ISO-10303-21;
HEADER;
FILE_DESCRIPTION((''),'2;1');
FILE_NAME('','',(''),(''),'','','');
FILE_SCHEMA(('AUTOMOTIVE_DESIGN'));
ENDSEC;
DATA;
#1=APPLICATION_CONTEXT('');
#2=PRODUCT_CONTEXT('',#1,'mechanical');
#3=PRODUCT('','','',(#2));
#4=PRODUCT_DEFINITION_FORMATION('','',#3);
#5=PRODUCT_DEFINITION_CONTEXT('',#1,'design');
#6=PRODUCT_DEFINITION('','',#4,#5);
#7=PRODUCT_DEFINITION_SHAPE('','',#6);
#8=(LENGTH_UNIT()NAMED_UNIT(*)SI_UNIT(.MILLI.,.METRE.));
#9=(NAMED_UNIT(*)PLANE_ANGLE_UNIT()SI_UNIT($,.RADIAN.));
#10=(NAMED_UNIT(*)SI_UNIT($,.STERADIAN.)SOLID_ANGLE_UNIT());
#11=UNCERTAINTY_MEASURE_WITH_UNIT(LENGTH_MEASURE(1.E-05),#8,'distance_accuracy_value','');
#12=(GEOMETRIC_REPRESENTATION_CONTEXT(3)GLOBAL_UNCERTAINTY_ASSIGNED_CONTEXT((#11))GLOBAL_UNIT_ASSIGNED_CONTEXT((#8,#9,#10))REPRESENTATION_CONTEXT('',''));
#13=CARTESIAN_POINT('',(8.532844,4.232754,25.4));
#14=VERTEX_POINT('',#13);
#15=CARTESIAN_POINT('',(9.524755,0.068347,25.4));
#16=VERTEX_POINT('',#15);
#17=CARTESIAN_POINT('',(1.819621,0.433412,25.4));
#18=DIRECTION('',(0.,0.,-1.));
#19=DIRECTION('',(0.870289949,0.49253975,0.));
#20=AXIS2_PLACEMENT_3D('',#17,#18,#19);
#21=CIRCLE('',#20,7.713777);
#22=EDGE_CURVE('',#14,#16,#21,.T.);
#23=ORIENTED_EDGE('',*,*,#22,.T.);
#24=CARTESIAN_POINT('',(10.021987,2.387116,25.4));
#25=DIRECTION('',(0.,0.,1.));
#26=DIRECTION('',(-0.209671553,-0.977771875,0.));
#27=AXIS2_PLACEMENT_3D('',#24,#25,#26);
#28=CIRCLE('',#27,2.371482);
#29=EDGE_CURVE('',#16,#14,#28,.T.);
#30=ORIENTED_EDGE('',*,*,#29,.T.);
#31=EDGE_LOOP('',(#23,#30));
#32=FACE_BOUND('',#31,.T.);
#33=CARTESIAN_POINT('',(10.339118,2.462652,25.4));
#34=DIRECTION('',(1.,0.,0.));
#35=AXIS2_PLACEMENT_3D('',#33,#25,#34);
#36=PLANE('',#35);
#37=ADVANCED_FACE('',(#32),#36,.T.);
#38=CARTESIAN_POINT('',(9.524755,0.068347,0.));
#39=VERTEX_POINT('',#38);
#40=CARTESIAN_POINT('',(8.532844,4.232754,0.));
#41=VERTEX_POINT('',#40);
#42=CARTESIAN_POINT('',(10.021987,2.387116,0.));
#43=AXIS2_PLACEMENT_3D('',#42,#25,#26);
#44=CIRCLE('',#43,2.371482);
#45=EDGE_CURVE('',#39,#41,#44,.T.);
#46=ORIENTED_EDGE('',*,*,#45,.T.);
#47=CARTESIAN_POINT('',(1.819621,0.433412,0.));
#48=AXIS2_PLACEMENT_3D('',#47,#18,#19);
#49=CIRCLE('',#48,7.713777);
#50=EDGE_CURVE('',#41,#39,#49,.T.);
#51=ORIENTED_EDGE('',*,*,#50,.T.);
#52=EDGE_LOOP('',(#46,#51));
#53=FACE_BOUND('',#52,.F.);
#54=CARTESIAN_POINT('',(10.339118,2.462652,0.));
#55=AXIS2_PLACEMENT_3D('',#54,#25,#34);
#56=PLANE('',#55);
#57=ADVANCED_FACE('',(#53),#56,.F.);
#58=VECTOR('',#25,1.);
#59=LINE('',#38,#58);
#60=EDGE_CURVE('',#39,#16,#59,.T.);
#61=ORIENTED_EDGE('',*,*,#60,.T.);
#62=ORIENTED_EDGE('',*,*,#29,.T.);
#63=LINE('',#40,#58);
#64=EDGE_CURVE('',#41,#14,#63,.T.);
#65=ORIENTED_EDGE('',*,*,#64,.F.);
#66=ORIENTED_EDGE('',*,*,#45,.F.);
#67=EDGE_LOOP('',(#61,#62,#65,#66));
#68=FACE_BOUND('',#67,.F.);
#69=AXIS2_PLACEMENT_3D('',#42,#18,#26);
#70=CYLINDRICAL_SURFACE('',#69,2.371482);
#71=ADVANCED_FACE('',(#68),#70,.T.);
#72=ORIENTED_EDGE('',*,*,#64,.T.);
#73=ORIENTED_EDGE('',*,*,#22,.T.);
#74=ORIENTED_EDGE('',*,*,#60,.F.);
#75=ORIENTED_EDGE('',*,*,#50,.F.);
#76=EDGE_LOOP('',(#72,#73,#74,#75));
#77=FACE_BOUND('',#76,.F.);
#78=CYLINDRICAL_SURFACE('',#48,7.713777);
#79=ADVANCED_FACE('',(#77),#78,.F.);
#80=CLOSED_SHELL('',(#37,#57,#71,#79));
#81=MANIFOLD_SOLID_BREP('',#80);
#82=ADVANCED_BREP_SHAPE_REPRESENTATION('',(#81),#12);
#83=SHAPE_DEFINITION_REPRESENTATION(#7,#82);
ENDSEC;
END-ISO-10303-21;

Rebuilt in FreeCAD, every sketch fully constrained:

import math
import FreeCAD as App
import Part
import Sketcher
from FreeCAD import Vector
Q = App.Units.Quantity

doc = App.newDocument("Part")
body = doc.addObject("PartDesign::Body", "Body")

# Sketch on XY plane
sketch1 = body.newObject("Sketcher::SketchObject", "Sketch")
sketch1.AttachmentSupport = (doc.getObject("XY_Plane"), [""])
sketch1.MapMode = "FlatFace"
sketch1.addGeometry(Part.ArcOfCircle(Part.Circle(Vector(1.819621, 0.433412, 0), Vector(0, 0, 1), 7.713777), math.radians(-2.712614), math.radians(29.507649)), False)
sketch1.addGeometry(Part.ArcOfCircle(Part.Circle(Vector(10.021987, 2.387116, 0), Vector(0, 0, 1), 2.371482), math.radians(-102.103105), math.radians(128.89814)), False)
sketch1.addConstraint(Sketcher.Constraint("Coincident", 0, 1, 1, 1))
sketch1.addConstraint(Sketcher.Constraint("Coincident", 1, 2, 0, 2))
sketch1.addConstraint(Sketcher.Constraint("Radius", 0, 7.713777))
sketch1.addConstraint(Sketcher.Constraint("Radius", 1, 2.371482))
sketch1.addConstraint(Sketcher.Constraint("DistanceX", 0, 3, 1, 2, Q("0.2643001 in")))
sketch1.addConstraint(Sketcher.Constraint("DistanceX", -1, 1, 0, 3, 1.819621))
sketch1.addConstraint(Sketcher.Constraint("DistanceY", 0, 1, 1, 3, 2.318769))
sketch1.addConstraint(Sketcher.Constraint("DistanceY", -1, 1, 0, 3, 0.433412))
pad1 = body.newObject("PartDesign::Pad", "Pad")
pad1.Profile = sketch1
pad1.Length = Q("1 in")

doc.recompute()
